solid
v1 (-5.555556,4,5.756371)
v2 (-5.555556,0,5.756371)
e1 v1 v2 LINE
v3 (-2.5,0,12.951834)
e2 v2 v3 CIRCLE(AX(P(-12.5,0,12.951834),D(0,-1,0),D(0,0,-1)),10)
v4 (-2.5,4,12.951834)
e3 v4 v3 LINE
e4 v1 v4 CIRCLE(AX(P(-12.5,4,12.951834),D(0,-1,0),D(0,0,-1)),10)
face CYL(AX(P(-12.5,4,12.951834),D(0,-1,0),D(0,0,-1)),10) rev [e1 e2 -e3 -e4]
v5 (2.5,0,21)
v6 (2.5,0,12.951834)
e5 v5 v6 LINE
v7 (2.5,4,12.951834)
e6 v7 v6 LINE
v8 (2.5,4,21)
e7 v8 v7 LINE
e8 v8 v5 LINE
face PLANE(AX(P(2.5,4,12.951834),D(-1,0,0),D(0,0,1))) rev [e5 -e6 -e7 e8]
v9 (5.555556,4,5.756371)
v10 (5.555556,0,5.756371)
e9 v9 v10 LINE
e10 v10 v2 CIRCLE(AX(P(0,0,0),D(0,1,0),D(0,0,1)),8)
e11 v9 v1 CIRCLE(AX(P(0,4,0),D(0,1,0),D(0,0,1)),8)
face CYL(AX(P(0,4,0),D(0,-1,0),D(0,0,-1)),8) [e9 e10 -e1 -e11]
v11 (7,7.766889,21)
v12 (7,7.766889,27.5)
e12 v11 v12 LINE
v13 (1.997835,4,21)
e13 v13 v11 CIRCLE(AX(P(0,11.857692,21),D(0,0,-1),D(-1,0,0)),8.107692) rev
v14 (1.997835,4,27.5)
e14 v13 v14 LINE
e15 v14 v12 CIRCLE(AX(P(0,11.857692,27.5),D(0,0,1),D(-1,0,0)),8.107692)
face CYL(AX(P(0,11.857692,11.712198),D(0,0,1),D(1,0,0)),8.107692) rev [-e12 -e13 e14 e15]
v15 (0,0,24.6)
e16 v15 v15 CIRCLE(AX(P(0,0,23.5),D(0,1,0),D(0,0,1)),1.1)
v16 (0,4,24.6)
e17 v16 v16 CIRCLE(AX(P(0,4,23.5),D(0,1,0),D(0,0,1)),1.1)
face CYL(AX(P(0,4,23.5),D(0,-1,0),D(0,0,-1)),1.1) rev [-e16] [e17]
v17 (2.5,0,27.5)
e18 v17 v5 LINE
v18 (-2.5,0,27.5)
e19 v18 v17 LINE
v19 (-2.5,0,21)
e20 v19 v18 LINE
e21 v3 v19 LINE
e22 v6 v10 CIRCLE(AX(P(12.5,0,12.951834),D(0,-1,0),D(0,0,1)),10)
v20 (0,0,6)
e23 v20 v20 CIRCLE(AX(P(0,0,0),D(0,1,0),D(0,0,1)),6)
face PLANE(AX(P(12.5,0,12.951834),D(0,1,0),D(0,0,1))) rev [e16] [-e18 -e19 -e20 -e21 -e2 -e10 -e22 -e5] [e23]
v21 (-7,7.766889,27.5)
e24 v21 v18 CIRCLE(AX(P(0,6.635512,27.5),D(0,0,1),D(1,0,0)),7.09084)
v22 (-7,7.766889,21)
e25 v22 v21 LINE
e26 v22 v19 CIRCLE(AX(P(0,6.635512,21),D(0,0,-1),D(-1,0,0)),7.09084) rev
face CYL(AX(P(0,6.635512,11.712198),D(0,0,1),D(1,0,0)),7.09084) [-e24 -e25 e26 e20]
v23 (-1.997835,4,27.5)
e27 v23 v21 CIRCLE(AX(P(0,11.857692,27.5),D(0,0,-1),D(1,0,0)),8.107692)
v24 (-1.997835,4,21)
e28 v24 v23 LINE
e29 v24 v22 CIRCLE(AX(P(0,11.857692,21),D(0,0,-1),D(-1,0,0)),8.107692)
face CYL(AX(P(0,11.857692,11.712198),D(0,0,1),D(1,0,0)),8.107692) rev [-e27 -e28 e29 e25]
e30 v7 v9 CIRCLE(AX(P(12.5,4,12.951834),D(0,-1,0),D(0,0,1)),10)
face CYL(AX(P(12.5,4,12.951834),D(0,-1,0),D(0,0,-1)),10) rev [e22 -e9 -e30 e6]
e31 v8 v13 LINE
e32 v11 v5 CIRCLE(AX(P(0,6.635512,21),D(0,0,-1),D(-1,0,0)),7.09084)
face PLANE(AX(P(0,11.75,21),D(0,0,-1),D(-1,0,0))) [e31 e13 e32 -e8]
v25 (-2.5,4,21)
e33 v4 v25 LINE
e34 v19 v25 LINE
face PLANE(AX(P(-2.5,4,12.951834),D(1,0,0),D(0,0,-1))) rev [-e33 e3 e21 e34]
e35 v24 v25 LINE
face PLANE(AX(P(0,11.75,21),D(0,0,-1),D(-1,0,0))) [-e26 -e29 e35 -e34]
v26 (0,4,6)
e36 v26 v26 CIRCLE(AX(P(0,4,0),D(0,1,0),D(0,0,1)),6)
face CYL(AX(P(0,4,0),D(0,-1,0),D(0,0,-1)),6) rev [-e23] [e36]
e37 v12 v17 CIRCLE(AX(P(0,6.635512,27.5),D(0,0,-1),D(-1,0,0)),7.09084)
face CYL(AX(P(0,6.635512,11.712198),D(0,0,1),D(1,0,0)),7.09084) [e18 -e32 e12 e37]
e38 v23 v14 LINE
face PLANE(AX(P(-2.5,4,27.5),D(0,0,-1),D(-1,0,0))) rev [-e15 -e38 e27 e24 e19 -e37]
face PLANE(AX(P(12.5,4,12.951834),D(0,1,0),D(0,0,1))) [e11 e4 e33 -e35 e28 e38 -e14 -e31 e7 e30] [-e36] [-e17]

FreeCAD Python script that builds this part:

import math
import FreeCAD as App
import Part
import Sketcher

doc = App.newDocument("Part")
body = doc.addObject("PartDesign::Body", "Body")

# Sketch on XZ plane
sketch1 = doc.addObject("Sketcher::SketchObject", "Sketch")
body.addObject(sketch1)
sketch1.AttachmentSupport = (doc.XZ_Plane, [""])
sketch1.MapMode = "FlatFace"
sketch1.addGeometry(Part.LineSegment(App.Vector(-2.5, 27.5, 0), App.Vector(2.5, 27.5, 0)), False)
sketch1.addGeometry(Part.LineSegment(App.Vector(2.5, 27.5, 0), App.Vector(2.5, 12.951834, 0)), False)
sketch1.addGeometry(Part.ArcOfCircle(Part.Circle(App.Vector(12.5, 12.951834, 0), App.Vector(0, 0, 1), 10), math.radians(180), math.radians(226.017037)), False)
sketch1.addGeometry(Part.ArcOfCircle(Part.Circle(App.Vector(0, 0, 0), App.Vector(0, 0, 1), 8), math.radians(133.982963), math.radians(406.017037)), False)
sketch1.addGeometry(Part.ArcOfCircle(Part.Circle(App.Vector(-12.5, 12.951834, 0), App.Vector(0, 0, 1), 10), math.radians(-46.017037), math.radians(0)), False)
sketch1.addGeometry(Part.LineSegment(App.Vector(-2.5, 12.951834, 0), App.Vector(-2.5, 27.5, 0)), False)
sketch1.addGeometry(Part.Circle(App.Vector(0, 23.5, 0), App.Vector(0, 0, 1), 1.1), False)
sketch1.addGeometry(Part.Circle(App.Vector(0, 0, 0), App.Vector(0, 0, 1), 6), False)
sketch1.addConstraint(Sketcher.Constraint("Coincident", 0, 2, 1, 1))
sketch1.addConstraint(Sketcher.Constraint("Tangent", 1, 2, 2, 1))
sketch1.addConstraint(Sketcher.Constraint("Tangent", 2, 2, 3, 2))
sketch1.addConstraint(Sketcher.Constraint("Tangent", 3, 1, 4, 1))
sketch1.addConstraint(Sketcher.Constraint("Tangent", 4, 2, 5, 1))
sketch1.addConstraint(Sketcher.Constraint("Coincident", 5, 2, 0, 1))
sketch1.addConstraint(Sketcher.Constraint("Horizontal", 0))
sketch1.addConstraint(Sketcher.Constraint("Vertical", 1))
sketch1.addConstraint(Sketcher.Constraint("Vertical", 5))
sketch1.addConstraint(Sketcher.Constraint("Coincident", 3, 3, -1, 1))
sketch1.addConstraint(Sketcher.Constraint("Coincident", 7, 3, -1, 1))
sketch1.addConstraint(Sketcher.Constraint("Equal", 2, 4))
sketch1.addConstraint(Sketcher.Constraint("PointOnObject", 6, 3, -2))
sketch1.addConstraint(Sketcher.Constraint("Horizontal", 2, 3, 4, 3))
sketch1.addConstraint(Sketcher.Constraint("Diameter", 7, 12.0))
sketch1.addConstraint(Sketcher.Constraint("Radius", 2, 10.0))
sketch1.addConstraint(Sketcher.Constraint("Radius", 3, 8.0))
sketch1.addConstraint(Sketcher.Constraint("Diameter", 6, 2.2))
sketch1.addConstraint(Sketcher.Constraint("DistanceX", 0, 1, 0, 2, 5.0))
sketch1.addConstraint(Sketcher.Constraint("DistanceY", 6, 3, 0, 2, 4.0))
sketch1.addConstraint(Sketcher.Constraint("DistanceY", -1, 1, 6, 3, 23.5))
pad1 = doc.addObject("PartDesign::Pad", "Pad")
body.addObject(pad1)
pad1.Profile = sketch1
pad1.Length = 4
pad1.Reversed = True

# Sketch on XY plane
sketch2 = doc.addObject("Sketcher::SketchObject", "Sketch001")
body.addObject(sketch2)
sketch2.AttachmentSupport = (doc.XY_Plane, [""])
sketch2.MapMode = "FlatFace"
sketch2.AttachmentOffset = App.Placement(App.Vector(0, 0, 27.5), App.Rotation())
sketch2.addGeometry(Part.LineSegment(App.Vector(-2.5, 0, 0), App.Vector(-1.997835, 4, 0)), False)
sketch2.addGeometry(Part.ArcOfCircle(Part.Circle(App.Vector(0, 11.857692, 0), App.Vector(0, 0, 1), 8.107692), math.radians(-149.697963), math.radians(-104.265314)), False)
sketch2.addGeometry(Part.ArcOfCircle(Part.Circle(App.Vector(0, 6.635512, 0), App.Vector(0, 0, 1), 7.09084), math.radians(170.818948), math.radians(249.355563)), False)
sketch2.addConstraint(Sketcher.Constraint("Coincident", 0, 2, 1, 2))
sketch2.addConstraint(Sketcher.Constraint("Coincident", 1, 1, 2, 1))
sketch2.addConstraint(Sketcher.Constraint("Coincident", 2, 2, 0, 1))
sketch2.addConstraint(Sketcher.Constraint("PointOnObject", 1, 3, -2))
sketch2.addConstraint(Sketcher.Constraint("PointOnObject", 2, 3, -2))
sketch2.addConstraint(Sketcher.Constraint("PointOnObject", 2, 2, -1))
sketch2.addConstraint(Sketcher.Constraint("DistanceY", -1, 1, 0, 2, 4.0))
sketch2.addConstraint(Sketcher.Constraint("DistanceX", 1, 1, -1, 1, 7.0))
sketch2.addConstraint(Sketcher.Constraint("DistanceX", 2, 2, -1, 1, 2.5))
sketch2.addConstraint(Sketcher.Constraint("Radius", 2, 7.09084))
sketch2.addConstraint(Sketcher.Constraint("Radius", 1, 8.107692))
pad2 = doc.addObject("PartDesign::Pad", "Pad001")
body.addObject(pad2)
pad2.Profile = sketch2
pad2.Length = 6.5
pad2.Reversed = True
doc.recompute()

mirrored = doc.addObject("PartDesign::Mirrored", "Mirrored")
body.addObject(mirrored)
mirrored.Originals = [pad2]
mirrored.MirrorPlane = (doc.YZ_Plane, [""])
body.Tip = mirrored

doc.recompute()
